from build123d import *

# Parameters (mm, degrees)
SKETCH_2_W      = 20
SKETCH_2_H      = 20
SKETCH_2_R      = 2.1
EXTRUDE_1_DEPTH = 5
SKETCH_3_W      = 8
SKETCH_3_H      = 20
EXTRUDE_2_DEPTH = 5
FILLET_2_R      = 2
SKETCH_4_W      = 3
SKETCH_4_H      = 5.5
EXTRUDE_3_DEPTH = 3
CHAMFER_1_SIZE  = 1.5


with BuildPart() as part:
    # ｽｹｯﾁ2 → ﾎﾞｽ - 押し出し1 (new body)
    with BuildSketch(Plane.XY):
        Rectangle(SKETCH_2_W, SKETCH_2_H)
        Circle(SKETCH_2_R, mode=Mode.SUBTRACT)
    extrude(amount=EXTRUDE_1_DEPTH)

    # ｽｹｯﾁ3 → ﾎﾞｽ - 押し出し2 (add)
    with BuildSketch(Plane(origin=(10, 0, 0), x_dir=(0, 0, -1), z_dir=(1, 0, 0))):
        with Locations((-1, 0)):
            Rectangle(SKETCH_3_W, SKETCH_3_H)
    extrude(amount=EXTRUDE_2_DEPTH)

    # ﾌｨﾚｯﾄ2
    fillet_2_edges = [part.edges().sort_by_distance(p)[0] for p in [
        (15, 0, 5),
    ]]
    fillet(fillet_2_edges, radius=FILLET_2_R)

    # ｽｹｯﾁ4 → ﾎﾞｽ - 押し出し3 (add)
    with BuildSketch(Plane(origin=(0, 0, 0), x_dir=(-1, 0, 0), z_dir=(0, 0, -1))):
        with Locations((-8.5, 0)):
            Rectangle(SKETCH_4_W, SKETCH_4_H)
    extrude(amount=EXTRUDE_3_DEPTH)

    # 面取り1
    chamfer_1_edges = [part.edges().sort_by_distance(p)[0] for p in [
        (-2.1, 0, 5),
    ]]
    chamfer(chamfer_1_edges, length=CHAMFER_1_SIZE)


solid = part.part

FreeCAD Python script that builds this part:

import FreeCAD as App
import Part
import Sketcher
from FreeCAD import Vector
Q = App.Units.Quantity


def edges_at(feature, points):
    """Names of the edges that pass closest to the given points."""
    edges = feature.Shape.Edges
    near = lambda p: min(range(len(edges)), key=lambda i: edges[i].distToShape(Part.Vertex(*p))[0])
    return sorted({f"Edge{near(p) + 1}" for p in points})

doc = App.newDocument("Part")
params = doc.addObject("Spreadsheet::Sheet", "Params")
for row, (alias, value) in enumerate([
    ("sketch1_diameter", "4.2 mm"),
    ("sketch1_width", "20 mm"),
    ("pad1_length", "5 mm"),
    ("sketch2_width", "20 mm"),
    ("sketch2_height", "8 mm"),
    ("pad2_length", "5 mm"),
    ("fillet_radius", "2 mm"),
    ("sketch3_width", "3 mm"),
    ("sketch3_height", "5.5 mm"),
    ("pad3_length", "3 mm"),
    ("chamfer_size", "1.5 mm"),
], start=1):
    params.set(f"A{row}", alias)
    params.set(f"B{row}", "=" + value)
    params.setAlias(f"B{row}", alias)

body = doc.addObject("PartDesign::Body", "Body")

# Sketch on XY plane
sketch1 = doc.addObject("Sketcher::SketchObject", "Sketch")
body.addObject(sketch1)
sketch1.AttachmentSupport = (doc.XY_Plane, [""])
sketch1.MapMode = "FlatFace"
sketch1.addGeometry([
    Part.LineSegment(Vector(-10, 10, 0), Vector(-10, -10, 0)),  # 0
    Part.LineSegment(Vector(-10, -10, 0), Vector(10, -10, 0)),  # 1
    Part.LineSegment(Vector(10, -10, 0), Vector(10, 10, 0)),  # 2
    Part.LineSegment(Vector(10, 10, 0), Vector(-10, 10, 0)),  # 3
    Part.Circle(Vector(0, 0, 0), Vector(0, 0, 1), 2.1),  # 4
], False)
sketch1.addConstraint([
    Sketcher.Constraint("Coincident", 0, 2, 1, 1),
    Sketcher.Constraint("Coincident", 1, 2, 2, 1),
    Sketcher.Constraint("Coincident", 2, 2, 3, 1),
    Sketcher.Constraint("Coincident", 3, 2, 0, 1),
    Sketcher.Constraint("Vertical", 0),
    Sketcher.Constraint("Horizontal", 1),
    Sketcher.Constraint("Vertical", 2),
    Sketcher.Constraint("Horizontal", 3),
    Sketcher.Constraint("Coincident", 4, 3, -1, 1),
    Sketcher.Constraint("Symmetric", 0, 2, 2, 2, -1, 1),
    Sketcher.Constraint("Equal", 3, 0),
    Sketcher.Constraint("Diameter", 4, Q("4.2 mm")),
    Sketcher.Constraint("DistanceX", 1, 1, 1, 2, Q("20 mm")),
])
sketch1.setExpression("Constraints[11]", "Params.sketch1_diameter")
sketch1.setExpression("Constraints[12]", "Params.sketch1_width")
pad1 = doc.addObject("PartDesign::Pad", "Pad")
body.addObject(pad1)
pad1.Profile = sketch1
pad1.setExpression("Length", "Params.pad1_length")

# Sketch on YZ plane
sketch2 = doc.addObject("Sketcher::SketchObject", "Sketch001")
body.addObject(sketch2)
sketch2.AttachmentSupport = (doc.YZ_Plane, [""])
sketch2.MapMode = "FlatFace"
sketch2.AttachmentOffset = App.Placement(Vector(0, 0, 10), App.Rotation())
sketch2.addGeometry([
    Part.LineSegment(Vector(10, 5, 0), Vector(-10, 5, 0)),
    Part.LineSegment(Vector(-10, 5, 0), Vector(-10, -3, 0)),
    Part.LineSegment(Vector(-10, -3, 0), Vector(10, -3, 0)),
    Part.LineSegment(Vector(10, -3, 0), Vector(10, 5, 0)),
], False)
sketch2.addConstraint([
    Sketcher.Constraint("Coincident", 0, 2, 1, 1),
    Sketcher.Constraint("Coincident", 1, 2, 2, 1),
    Sketcher.Constraint("Coincident", 2, 2, 3, 1),
    Sketcher.Constraint("Coincident", 3, 2, 0, 1),
    Sketcher.Constraint("Horizontal", 0),
    Sketcher.Constraint("Vertical", 1),
    Sketcher.Constraint("Horizontal", 2),
    Sketcher.Constraint("Vertical", 3),
    Sketcher.Constraint("DistanceX", 0, 2, 0, 1, Q("20 mm")),
    Sketcher.Constraint("DistanceY", 1, 2, 1, 1, Q("8 mm")),
    Sketcher.Constraint("DistanceX", 0, 2, -1, 1, Q("10 mm")),
    Sketcher.Constraint("DistanceY", -1, 1, 0, 2, Q("5 mm")),
])
sketch2.setExpression("Constraints[8]", "Params.sketch2_width")
sketch2.setExpression("Constraints[9]", "Params.sketch2_height")
pad2 = doc.addObject("PartDesign::Pad", "Pad001")
body.addObject(pad2)
pad2.Profile = sketch2
pad2.setExpression("Length", "Params.pad2_length")
doc.recompute()

fillet = doc.addObject("PartDesign::Fillet", "Fillet")
body.addObject(fillet)
fillet.Base = (pad2, edges_at(pad2, [(15, 0, 5)]))
fillet.setExpression("Radius", "Params.fillet_radius")

# Sketch on XY plane
sketch3 = doc.addObject("Sketcher::SketchObject", "Sketch002")
body.addObject(sketch3)
sketch3.AttachmentSupport = (doc.XY_Plane, [""])
sketch3.MapMode = "FlatFace"
sketch3.addGeometry([
    Part.LineSegment(Vector(10, 2.8, 0), Vector(10, -2.8, 0)),
    Part.LineSegment(Vector(10, -2.8, 0), Vector(7, -2.8, 0)),
    Part.LineSegment(Vector(7, -2.8, 0), Vector(7, 2.8, 0)),
    Part.LineSegment(Vector(7, 2.8, 0), Vector(10, 2.8, 0)),
], False)
sketch3.addConstraint([
    Sketcher.Constraint("Coincident", 0, 2, 1, 1),
    Sketcher.Constraint("Coincident", 1, 2, 2, 1),
    Sketcher.Constraint("Coincident", 2, 2, 3, 1),
    Sketcher.Constraint("Coincident", 3, 2, 0, 1),
    Sketcher.Constraint("Vertical", 0),
    Sketcher.Constraint("Horizontal", 1),
    Sketcher.Constraint("Vertical", 2),
    Sketcher.Constraint("Horizontal", 3),
    Sketcher.Constraint("DistanceX", 1, 2, 1, 1, Q("3 mm")),
    Sketcher.Constraint("DistanceY", 0, 2, 0, 1, Q("5.5 mm")),
    Sketcher.Constraint("DistanceX", -1, 1, 0, 2, Q("10 mm")),
    Sketcher.Constraint("DistanceY", 0, 2, -1, 1, Q("2.75 mm")),
])
sketch3.setExpression("Constraints[8]", "Params.sketch3_width")
sketch3.setExpression("Constraints[9]", "Params.sketch3_height")
pad3 = doc.addObject("PartDesign::Pad", "Pad002")
body.addObject(pad3)
pad3.Profile = sketch3
pad3.setExpression("Length", "Params.pad3_length")
pad3.Reversed = True
doc.recompute()

chamfer = doc.addObject("PartDesign::Chamfer", "Chamfer")
body.addObject(chamfer)
chamfer.Base = (pad3, edges_at(pad3, [(-2.1, 0, 5)]))
chamfer.setExpression("Size", "Params.chamfer_size")

doc.recompute()
